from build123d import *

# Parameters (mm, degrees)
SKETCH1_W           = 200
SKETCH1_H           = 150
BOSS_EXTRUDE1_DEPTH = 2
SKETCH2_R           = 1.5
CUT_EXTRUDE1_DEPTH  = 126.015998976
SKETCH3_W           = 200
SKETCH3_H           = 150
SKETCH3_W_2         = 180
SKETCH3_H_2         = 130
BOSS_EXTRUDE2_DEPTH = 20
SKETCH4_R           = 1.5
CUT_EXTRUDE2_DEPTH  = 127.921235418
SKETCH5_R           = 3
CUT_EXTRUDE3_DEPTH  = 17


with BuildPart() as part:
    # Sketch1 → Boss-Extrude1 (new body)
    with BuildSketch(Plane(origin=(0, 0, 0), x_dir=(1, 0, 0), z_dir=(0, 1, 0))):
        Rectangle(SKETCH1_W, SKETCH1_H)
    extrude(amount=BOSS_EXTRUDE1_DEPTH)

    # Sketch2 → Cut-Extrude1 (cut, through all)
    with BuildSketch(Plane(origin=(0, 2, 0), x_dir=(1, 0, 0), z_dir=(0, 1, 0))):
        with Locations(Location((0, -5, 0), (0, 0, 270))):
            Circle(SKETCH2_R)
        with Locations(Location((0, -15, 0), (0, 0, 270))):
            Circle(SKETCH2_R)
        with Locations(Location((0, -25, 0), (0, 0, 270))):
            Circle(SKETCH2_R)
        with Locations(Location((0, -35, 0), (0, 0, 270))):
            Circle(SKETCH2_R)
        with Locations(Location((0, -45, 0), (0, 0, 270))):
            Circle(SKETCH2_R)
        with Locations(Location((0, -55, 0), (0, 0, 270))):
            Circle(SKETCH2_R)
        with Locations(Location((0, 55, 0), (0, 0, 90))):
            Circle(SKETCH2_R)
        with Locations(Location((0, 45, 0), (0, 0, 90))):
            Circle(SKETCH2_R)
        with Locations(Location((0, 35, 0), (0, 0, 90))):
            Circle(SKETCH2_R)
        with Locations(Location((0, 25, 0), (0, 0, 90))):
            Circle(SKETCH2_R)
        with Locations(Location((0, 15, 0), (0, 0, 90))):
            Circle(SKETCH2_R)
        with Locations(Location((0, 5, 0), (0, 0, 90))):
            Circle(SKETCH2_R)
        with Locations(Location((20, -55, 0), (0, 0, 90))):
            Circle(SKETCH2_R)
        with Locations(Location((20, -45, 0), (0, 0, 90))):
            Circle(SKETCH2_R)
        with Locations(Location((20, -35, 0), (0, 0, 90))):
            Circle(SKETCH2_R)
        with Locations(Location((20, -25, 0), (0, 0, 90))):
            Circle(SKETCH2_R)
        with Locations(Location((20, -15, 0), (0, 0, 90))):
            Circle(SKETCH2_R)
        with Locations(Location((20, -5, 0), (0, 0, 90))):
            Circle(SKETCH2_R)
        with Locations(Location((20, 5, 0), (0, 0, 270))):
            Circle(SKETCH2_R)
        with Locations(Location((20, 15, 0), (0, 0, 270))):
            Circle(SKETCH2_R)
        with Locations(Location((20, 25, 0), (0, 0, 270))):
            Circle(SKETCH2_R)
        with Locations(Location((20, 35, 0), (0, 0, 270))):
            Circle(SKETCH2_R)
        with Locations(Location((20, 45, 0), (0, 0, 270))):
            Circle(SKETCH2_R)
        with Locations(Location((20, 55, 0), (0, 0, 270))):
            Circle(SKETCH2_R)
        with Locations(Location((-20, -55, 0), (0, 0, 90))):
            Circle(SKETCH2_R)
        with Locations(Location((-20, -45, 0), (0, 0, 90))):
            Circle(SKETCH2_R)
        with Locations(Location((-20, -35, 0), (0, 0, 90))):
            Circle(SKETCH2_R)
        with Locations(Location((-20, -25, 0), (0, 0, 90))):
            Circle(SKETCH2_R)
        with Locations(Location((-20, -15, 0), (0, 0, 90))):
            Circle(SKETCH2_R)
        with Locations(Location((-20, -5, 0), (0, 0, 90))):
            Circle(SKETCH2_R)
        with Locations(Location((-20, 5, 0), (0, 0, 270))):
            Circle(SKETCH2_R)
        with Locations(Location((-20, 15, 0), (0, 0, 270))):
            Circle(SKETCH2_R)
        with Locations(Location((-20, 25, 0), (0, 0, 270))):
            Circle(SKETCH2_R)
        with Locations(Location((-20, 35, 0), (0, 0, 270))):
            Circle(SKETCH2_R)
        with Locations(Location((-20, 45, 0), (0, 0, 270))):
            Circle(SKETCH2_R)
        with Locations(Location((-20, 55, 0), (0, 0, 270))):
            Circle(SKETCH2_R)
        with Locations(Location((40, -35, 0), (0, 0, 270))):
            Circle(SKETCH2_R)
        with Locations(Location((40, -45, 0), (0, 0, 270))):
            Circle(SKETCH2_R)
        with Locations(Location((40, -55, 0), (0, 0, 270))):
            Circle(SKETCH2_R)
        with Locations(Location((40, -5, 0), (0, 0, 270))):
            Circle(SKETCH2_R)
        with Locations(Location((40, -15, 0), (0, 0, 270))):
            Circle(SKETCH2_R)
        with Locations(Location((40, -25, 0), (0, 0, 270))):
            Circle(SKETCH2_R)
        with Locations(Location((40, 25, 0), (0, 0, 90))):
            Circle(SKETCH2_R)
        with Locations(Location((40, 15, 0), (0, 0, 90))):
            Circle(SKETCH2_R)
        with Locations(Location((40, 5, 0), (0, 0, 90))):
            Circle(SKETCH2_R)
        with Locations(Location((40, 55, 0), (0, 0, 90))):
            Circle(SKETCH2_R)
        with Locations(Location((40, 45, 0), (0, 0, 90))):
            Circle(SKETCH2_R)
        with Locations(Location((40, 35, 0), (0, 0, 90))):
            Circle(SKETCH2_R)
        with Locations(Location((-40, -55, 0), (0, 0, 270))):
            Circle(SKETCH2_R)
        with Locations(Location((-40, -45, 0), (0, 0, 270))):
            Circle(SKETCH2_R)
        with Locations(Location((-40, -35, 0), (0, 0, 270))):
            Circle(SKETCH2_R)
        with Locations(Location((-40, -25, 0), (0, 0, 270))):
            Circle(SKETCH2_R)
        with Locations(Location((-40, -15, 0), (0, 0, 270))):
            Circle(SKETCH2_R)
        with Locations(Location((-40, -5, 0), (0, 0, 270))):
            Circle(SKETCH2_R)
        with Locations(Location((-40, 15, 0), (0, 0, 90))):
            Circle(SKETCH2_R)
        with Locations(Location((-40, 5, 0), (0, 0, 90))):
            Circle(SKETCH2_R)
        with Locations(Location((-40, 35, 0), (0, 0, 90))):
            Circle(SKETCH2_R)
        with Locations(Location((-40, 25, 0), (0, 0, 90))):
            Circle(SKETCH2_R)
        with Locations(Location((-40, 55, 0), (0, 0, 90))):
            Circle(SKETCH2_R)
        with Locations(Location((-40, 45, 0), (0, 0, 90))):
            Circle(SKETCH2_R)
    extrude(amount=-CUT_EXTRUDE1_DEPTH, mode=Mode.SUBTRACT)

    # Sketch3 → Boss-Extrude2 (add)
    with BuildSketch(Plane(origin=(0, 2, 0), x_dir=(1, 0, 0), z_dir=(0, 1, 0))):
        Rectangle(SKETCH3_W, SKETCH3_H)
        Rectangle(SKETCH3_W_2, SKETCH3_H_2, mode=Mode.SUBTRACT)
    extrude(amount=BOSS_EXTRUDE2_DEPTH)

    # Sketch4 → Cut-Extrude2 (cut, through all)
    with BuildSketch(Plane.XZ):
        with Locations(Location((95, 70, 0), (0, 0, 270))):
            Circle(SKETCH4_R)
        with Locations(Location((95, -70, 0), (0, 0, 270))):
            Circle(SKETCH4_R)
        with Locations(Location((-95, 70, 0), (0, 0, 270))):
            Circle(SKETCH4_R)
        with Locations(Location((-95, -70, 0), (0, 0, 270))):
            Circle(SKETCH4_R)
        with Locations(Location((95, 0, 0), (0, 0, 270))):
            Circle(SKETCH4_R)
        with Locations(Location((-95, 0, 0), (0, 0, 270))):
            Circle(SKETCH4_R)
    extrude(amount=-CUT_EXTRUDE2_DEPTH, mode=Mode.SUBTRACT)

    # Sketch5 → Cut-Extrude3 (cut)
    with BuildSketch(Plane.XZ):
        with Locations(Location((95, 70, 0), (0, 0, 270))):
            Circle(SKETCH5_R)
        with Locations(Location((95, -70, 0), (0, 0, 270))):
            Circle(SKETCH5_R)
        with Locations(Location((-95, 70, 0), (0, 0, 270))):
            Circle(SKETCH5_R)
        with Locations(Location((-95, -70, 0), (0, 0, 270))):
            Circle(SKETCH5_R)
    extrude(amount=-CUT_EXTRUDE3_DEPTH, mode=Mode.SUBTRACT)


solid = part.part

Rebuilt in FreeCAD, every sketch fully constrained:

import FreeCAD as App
import Part
import Sketcher
from FreeCAD import Vector
Q = App.Units.Quantity

doc = App.newDocument("Part")
body = doc.addObject("PartDesign::Body", "Body")

# Sketch on XZ plane
sketch1 = body.newObject("Sketcher::SketchObject", "Sketch")
sketch1.AttachmentSupport = (doc.getObject("XZ_Plane"), [""])
sketch1.MapMode = "FlatFace"
sketch1.addGeometry([
    Part.LineSegment(Vector(-100, -75, 0), Vector(-100, 75, 0)),
    Part.LineSegment(Vector(-100, 75, 0), Vector(100, 75, 0)),
    Part.LineSegment(Vector(100, 75, 0), Vector(100, -75, 0)),
    Part.LineSegment(Vector(100, -75, 0), Vector(-100, -75, 0)),
], False)
sketch1.addConstraint([
    Sketcher.Constraint("Coincident", 0, 2, 1, 1),
    Sketcher.Constraint("Coincident", 1, 2, 2, 1),
    Sketcher.Constraint("Coincident", 2, 2, 3, 1),
    Sketcher.Constraint("Coincident", 3, 2, 0, 1),
    Sketcher.Constraint("Vertical", 0),
    Sketcher.Constraint("Horizontal", 1),
    Sketcher.Constraint("Vertical", 2),
    Sketcher.Constraint("Horizontal", 3),
    Sketcher.Constraint("Symmetric", 0, 2, 2, 2, -1, 1),
    Sketcher.Constraint("DistanceX", 1, 1, 1, 2, Q("200 mm")),
    Sketcher.Constraint("DistanceY", 0, 1, 0, 2, Q("150 mm")),
])
pad1 = body.newObject("PartDesign::Pad", "Pad")
pad1.Profile = sketch1
pad1.Length = 2
pad1.Reversed = True

# Sketch on XZ plane
sketch2 = body.newObject("Sketcher::SketchObject", "Sketch001")
sketch2.AttachmentSupport = (doc.getObject("XZ_Plane"), [""])
sketch2.MapMode = "FlatFace"
sketch2.AttachmentOffset = App.Placement(Vector(0, 0, -2), App.Rotation())
sketch2.addGeometry([
    Part.Circle(Vector(0, 5, 0), Vector(0, 0, 1), 1.5),  # 0
    Part.Circle(Vector(0, 15, 0), Vector(0, 0, 1), 1.5),  # 1
    Part.Circle(Vector(0, 25, 0), Vector(0, 0, 1), 1.5),  # 2
    Part.Circle(Vector(0, 35, 0), Vector(0, 0, 1), 1.5),  # 3
    Part.Circle(Vector(0, 45, 0), Vector(0, 0, 1), 1.5),  # 4
    Part.Circle(Vector(0, 55, 0), Vector(0, 0, 1), 1.5),  # 5
    Part.Circle(Vector(0, -55, 0), Vector(0, 0, 1), 1.5),  # 6
    Part.Circle(Vector(0, -45, 0), Vector(0, 0, 1), 1.5),  # 7
    Part.Circle(Vector(0, -35, 0), Vector(0, 0, 1), 1.5),  # 8
    Part.Circle(Vector(0, -25, 0), Vector(0, 0, 1), 1.5),  # 9
    Part.Circle(Vector(0, -15, 0), Vector(0, 0, 1), 1.5),  # 10
    Part.Circle(Vector(0, -5, 0), Vector(0, 0, 1), 1.5),  # 11
    Part.Circle(Vector(20, 55, 0), Vector(0, 0, 1), 1.5),  # 12
    Part.Circle(Vector(20, 45, 0), Vector(0, 0, 1), 1.5),  # 13
    Part.Circle(Vector(20, 35, 0), Vector(0, 0, 1), 1.5),  # 14
    Part.Circle(Vector(20, 25, 0), Vector(0, 0, 1), 1.5),  # 15
    Part.Circle(Vector(20, 15, 0), Vector(0, 0, 1), 1.5),  # 16
    Part.Circle(Vector(20, 5, 0), Vector(0, 0, 1), 1.5),  # 17
    Part.Circle(Vector(20, -5, 0), Vector(0, 0, 1), 1.5),  # 18
    Part.Circle(Vector(20, -15, 0), Vector(0, 0, 1), 1.5),  # 19
    Part.Circle(Vector(20, -25, 0), Vector(0, 0, 1), 1.5),  # 20
    Part.Circle(Vector(20, -35, 0), Vector(0, 0, 1), 1.5),  # 21
    Part.Circle(Vector(20, -45, 0), Vector(0, 0, 1), 1.5),  # 22
    Part.Circle(Vector(20, -55, 0), Vector(0, 0, 1), 1.5),  # 23
    Part.Circle(Vector(-20, 55, 0), Vector(0, 0, 1), 1.5),  # 24
    Part.Circle(Vector(-20, 45, 0), Vector(0, 0, 1), 1.5),  # 25
    Part.Circle(Vector(-20, 35, 0), Vector(0, 0, 1), 1.5),  # 26
    Part.Circle(Vector(-20, 25, 0), Vector(0, 0, 1), 1.5),  # 27
    Part.Circle(Vector(-20, 15, 0), Vector(0, 0, 1), 1.5),  # 28
    Part.Circle(Vector(-20, 5, 0), Vector(0, 0, 1), 1.5),  # 29
    Part.Circle(Vector(-20, -5, 0), Vector(0, 0, 1), 1.5),  # 30
    Part.Circle(Vector(-20, -15, 0), Vector(0, 0, 1), 1.5),  # 31
    Part.Circle(Vector(-20, -25, 0), Vector(0, 0, 1), 1.5),  # 32
    Part.Circle(Vector(-20, -35, 0), Vector(0, 0, 1), 1.5),  # 33
    Part.Circle(Vector(-20, -45, 0), Vector(0, 0, 1), 1.5),  # 34
    Part.Circle(Vector(-20, -55, 0), Vector(0, 0, 1), 1.5),  # 35
    Part.Circle(Vector(40, 35, 0), Vector(0, 0, 1), 1.5),  # 36
    Part.Circle(Vector(40, 45, 0), Vector(0, 0, 1), 1.5),  # 37
    Part.Circle(Vector(40, 55, 0), Vector(0, 0, 1), 1.5),  # 38
    Part.Circle(Vector(40, 5, 0), Vector(0, 0, 1), 1.5),  # 39
    Part.Circle(Vector(40, 15, 0), Vector(0, 0, 1), 1.5),  # 40
    Part.Circle(Vector(40, 25, 0), Vector(0, 0, 1), 1.5),  # 41
    Part.Circle(Vector(40, -25, 0), Vector(0, 0, 1), 1.5),  # 42
    Part.Circle(Vector(40, -15, 0), Vector(0, 0, 1), 1.5),  # 43
    Part.Circle(Vector(40, -5, 0), Vector(0, 0, 1), 1.5),  # 44
    Part.Circle(Vector(40, -55, 0), Vector(0, 0, 1), 1.5),  # 45
    Part.Circle(Vector(40, -45, 0), Vector(0, 0, 1), 1.5),  # 46
    Part.Circle(Vector(40, -35, 0), Vector(0, 0, 1), 1.5),  # 47
    Part.Circle(Vector(-40, 55, 0), Vector(0, 0, 1), 1.5),  # 48
    Part.Circle(Vector(-40, 45, 0), Vector(0, 0, 1), 1.5),  # 49
    Part.Circle(Vector(-40, 35, 0), Vector(0, 0, 1), 1.5),  # 50
    Part.Circle(Vector(-40, 25, 0), Vector(0, 0, 1), 1.5),  # 51
    Part.Circle(Vector(-40, 15, 0), Vector(0, 0, 1), 1.5),  # 52
    Part.Circle(Vector(-40, 5, 0), Vector(0, 0, 1), 1.5),  # 53
    Part.Circle(Vector(-40, -15, 0), Vector(0, 0, 1), 1.5),  # 54
    Part.Circle(Vector(-40, -5, 0), Vector(0, 0, 1), 1.5),  # 55
    Part.Circle(Vector(-40, -35, 0), Vector(0, 0, 1), 1.5),  # 56
    Part.Circle(Vector(-40, -25, 0), Vector(0, 0, 1), 1.5),  # 57
    Part.Circle(Vector(-40, -55, 0), Vector(0, 0, 1), 1.5),  # 58
    Part.Circle(Vector(-40, -45, 0), Vector(0, 0, 1), 1.5),  # 59
], False)
sketch2.addConstraint([
    Sketcher.Constraint("Equal", 0, 1),
    Sketcher.Constraint("Equal", 1, 2),
    Sketcher.Constraint("Equal", 2, 3),
    Sketcher.Constraint("Equal", 3, 4),
    Sketcher.Constraint("Equal", 4, 5),
    Sketcher.Constraint("Equal", 5, 6),
    Sketcher.Constraint("Equal", 6, 7),
    Sketcher.Constraint("Equal", 7, 8),
    Sketcher.Constraint("Equal", 8, 9),
    Sketcher.Constraint("Equal", 9, 10),
    Sketcher.Constraint("Equal", 10, 11),
    Sketcher.Constraint("Equal", 11, 12),
    Sketcher.Constraint("Equal", 12, 13),
    Sketcher.Constraint("Equal", 13, 14),
    Sketcher.Constraint("Equal", 14, 15),
    Sketcher.Constraint("Equal", 15, 16),
    Sketcher.Constraint("Equal", 16, 17),
    Sketcher.Constraint("Equal", 17, 18),
    Sketcher.Constraint("Equal", 18, 19),
    Sketcher.Constraint("Equal", 19, 20),
    Sketcher.Constraint("Equal", 20, 21),
    Sketcher.Constraint("Equal", 21, 22),
    Sketcher.Constraint("Equal", 22, 23),
    Sketcher.Constraint("Equal", 23, 24),
    Sketcher.Constraint("Equal", 24, 25),
    Sketcher.Constraint("Equal", 25, 26),
    Sketcher.Constraint("Equal", 26, 27),
    Sketcher.Constraint("Equal", 27, 28),
    Sketcher.Constraint("Equal", 28, 29),
    Sketcher.Constraint("Equal", 29, 30),
    Sketcher.Constraint("Equal", 30, 31),
    Sketcher.Constraint("Equal", 31, 32),
    Sketcher.Constraint("Equal", 32, 33),
    Sketcher.Constraint("Equal", 33, 34),
    Sketcher.Constraint("Equal", 34, 35),
    Sketcher.Constraint("Equal", 35, 36),
    Sketcher.Constraint("Equal", 36, 37),
    Sketcher.Constraint("Equal", 37, 38),
    Sketcher.Constraint("Equal", 38, 39),
    Sketcher.Constraint("Equal", 39, 40),
    Sketcher.Constraint("Equal", 40, 41),
    Sketcher.Constraint("Equal", 41, 42),
    Sketcher.Constraint("Equal", 42, 43),
    Sketcher.Constraint("Equal", 43, 44),
    Sketcher.Constraint("Equal", 44, 45),
    Sketcher.Constraint("Equal", 45, 46),
    Sketcher.Constraint("Equal", 46, 47),
    Sketcher.Constraint("Equal", 47, 48),
    Sketcher.Constraint("Equal", 48, 49),
    Sketcher.Constraint("Equal", 49, 50),
    Sketcher.Constraint("Equal", 50, 51),
    Sketcher.Constraint("Equal", 51, 52),
    Sketcher.Constraint("Equal", 52, 53),
    Sketcher.Constraint("Equal", 53, 54),
    Sketcher.Constraint("Equal", 54, 55),
    Sketcher.Constraint("Equal", 55, 56),
    Sketcher.Constraint("Equal", 56, 57),
    Sketcher.Constraint("Equal", 57, 58),
    Sketcher.Constraint("Equal", 58, 59),
    Sketcher.Constraint("Symmetric", 5, 3, 6, 3, -1, 1),
    Sketcher.Constraint("Symmetric", 4, 3, 7, 3, -1, 1),
    Sketcher.Constraint("Symmetric", 3, 3, 8, 3, -1, 1),
    Sketcher.Constraint("Symmetric", 2, 3, 9, 3, -1, 1),
    Sketcher.Constraint("Symmetric", 1, 3, 10, 3, -1, 1),
    Sketcher.Constraint("Symmetric", 0, 3, 11, 3, -1, 1),
    Sketcher.Constraint("Symmetric", 23, 3, 24, 3, -1, 1),
    Sketcher.Constraint("Symmetric", 22, 3, 25, 3, -1, 1),
    Sketcher.Constraint("Symmetric", 21, 3, 26, 3, -1, 1),
    Sketcher.Constraint("Symmetric", 20, 3, 27, 3, -1, 1),
    Sketcher.Constraint("Symmetric", 19, 3, 28, 3, -1, 1),
    Sketcher.Constraint("Symmetric", 18, 3, 29, 3, -1, 1),
    Sketcher.Constraint("Symmetric", 17, 3, 30, 3, -1, 1),
    Sketcher.Constraint("Symmetric", 16, 3, 31, 3, -1, 1),
    Sketcher.Constraint("Symmetric", 15, 3, 32, 3, -1, 1),
    Sketcher.Constraint("Symmetric", 14, 3, 33, 3, -1, 1),
    Sketcher.Constraint("Symmetric", 13, 3, 34, 3, -1, 1),
    Sketcher.Constraint("Symmetric", 12, 3, 35, 3, -1, 1),
    Sketcher.Constraint("Symmetric", 45, 3, 48, 3, -1, 1),
    Sketcher.Constraint("Symmetric", 46, 3, 49, 3, -1, 1),
    Sketcher.Constraint("Symmetric", 47, 3, 50, 3, -1, 1),
    Sketcher.Constraint("Symmetric", 42, 3, 51, 3, -1, 1),
    Sketcher.Constraint("Symmetric", 43, 3, 52, 3, -1, 1),
    Sketcher.Constraint("Symmetric", 44, 3, 53, 3, -1, 1),
    Sketcher.Constraint("Symmetric", 40, 3, 54, 3, -1, 1),
    Sketcher.Constraint("Symmetric", 39, 3, 55, 3, -1, 1),
    Sketcher.Constraint("Symmetric", 36, 3, 56, 3, -1, 1),
    Sketcher.Constraint("Symmetric", 41, 3, 57, 3, -1, 1),
    Sketcher.Constraint("Symmetric", 38, 3, 58, 3, -1, 1),
    Sketcher.Constraint("Symmetric", 37, 3, 59, 3, -1, 1),
    Sketcher.Constraint("Symmetric", 12, 3, 24, 3, -2),
    Sketcher.Constraint("Symmetric", 13, 3, 25, 3, -2),
    Sketcher.Constraint("Symmetric", 14, 3, 26, 3, -2),
    Sketcher.Constraint("Symmetric", 15, 3, 27, 3, -2),
    Sketcher.Constraint("Symmetric", 16, 3, 28, 3, -2),
    Sketcher.Constraint("Symmetric", 17, 3, 29, 3, -2),
    Sketcher.Constraint("Symmetric", 38, 3, 48, 3, -2),
    Sketcher.Constraint("Symmetric", 37, 3, 49, 3, -2),
    Sketcher.Constraint("Symmetric", 36, 3, 50, 3, -2),
    Sketcher.Constraint("Symmetric", 41, 3, 51, 3, -2),
    Sketcher.Constraint("Symmetric", 40, 3, 52, 3, -2),
    Sketcher.Constraint("Symmetric", 39, 3, 53, 3, -2),
    Sketcher.Constraint("PointOnObject", 0, 3, -2),
    Sketcher.Constraint("PointOnObject", 1, 3, -2),
    Sketcher.Constraint("PointOnObject", 2, 3, -2),
    Sketcher.Constraint("PointOnObject", 3, 3, -2),
    Sketcher.Constraint("PointOnObject", 4, 3, -2),
    Sketcher.Constraint("PointOnObject", 5, 3, -2),
    Sketcher.Constraint("Horizontal", 5, 3, 12, 3),
    Sketcher.Constraint("Horizontal", 4, 3, 13, 3),
    Sketcher.Constraint("Horizontal", 3, 3, 14, 3),
    Sketcher.Constraint("Horizontal", 2, 3, 15, 3),
    Sketcher.Constraint("Horizontal", 1, 3, 16, 3),
    Sketcher.Constraint("Horizontal", 0, 3, 17, 3),
    Sketcher.Constraint("Horizontal", 26, 3, 36, 3),
    Sketcher.Constraint("Horizontal", 25, 3, 37, 3),
    Sketcher.Constraint("Horizontal", 24, 3, 38, 3),
    Sketcher.Constraint("Horizontal", 29, 3, 39, 3),
    Sketcher.Constraint("Horizontal", 28, 3, 40, 3),
    Sketcher.Constraint("Horizontal", 27, 3, 41, 3),
    Sketcher.Constraint("Vertical", 12, 3, 13, 3),
    Sketcher.Constraint("Vertical", 13, 3, 14, 3),
    Sketcher.Constraint("Vertical", 14, 3, 15, 3),
    Sketcher.Constraint("Vertical", 15, 3, 16, 3),
    Sketcher.Constraint("Vertical", 16, 3, 17, 3),
    Sketcher.Constraint("Vertical", 36, 3, 37, 3),
    Sketcher.Constraint("Vertical", 37, 3, 38, 3),
    Sketcher.Constraint("Vertical", 38, 3, 39, 3),
    Sketcher.Constraint("Vertical", 39, 3, 40, 3),
    Sketcher.Constraint("Vertical", 40, 3, 41, 3),
    Sketcher.Constraint("Diameter", 0, Q("3 mm")),
    Sketcher.Constraint("DistanceY", -1, 1, 0, 3, Q("5 mm")),
    Sketcher.Constraint("DistanceY", -1, 1, 1, 3, Q("15 mm")),
    Sketcher.Constraint("DistanceY", -1, 1, 2, 3, Q("25 mm")),
    Sketcher.Constraint("DistanceY", -1, 1, 3, 3, Q("35 mm")),
    Sketcher.Constraint("DistanceY", -1, 1, 4, 3, Q("45 mm")),
    Sketcher.Constraint("DistanceY", -1, 1, 5, 3, Q("55 mm")),
    Sketcher.Constraint("DistanceX", -1, 1, 12, 3, Q("20 mm")),
    Sketcher.Constraint("DistanceX", -1, 1, 36, 3, Q("40 mm")),
])
pocket1 = body.newObject("PartDesign::Pocket", "Pocket")
pocket1.Profile = sketch2
pocket1.Type = "ThroughAll"
pocket1.Reversed = True

# Sketch on XZ plane
sketch3 = body.newObject("Sketcher::SketchObject", "Sketch002")
sketch3.AttachmentSupport = (doc.getObject("XZ_Plane"), [""])
sketch3.MapMode = "FlatFace"
sketch3.AttachmentOffset = App.Placement(Vector(0, 0, -2), App.Rotation())
sketch3.addGeometry([
    Part.LineSegment(Vector(-100, -75, 0), Vector(-100, 75, 0)),  # 0
    Part.LineSegment(Vector(-100, 75, 0), Vector(100, 75, 0)),  # 1
    Part.LineSegment(Vector(100, 75, 0), Vector(100, -75, 0)),  # 2
    Part.LineSegment(Vector(100, -75, 0), Vector(-100, -75, 0)),  # 3
    Part.LineSegment(Vector(90, 65, 0), Vector(-90, 65, 0)),  # 4
    Part.LineSegment(Vector(-90, 65, 0), Vector(-90, -65, 0)),  # 5
    Part.LineSegment(Vector(-90, -65, 0), Vector(90, -65, 0)),  # 6
    Part.LineSegment(Vector(90, -65, 0), Vector(90, 65, 0)),  # 7
], False)
sketch3.addConstraint([
    Sketcher.Constraint("Coincident", 0, 2, 1, 1),
    Sketcher.Constraint("Coincident", 1, 2, 2, 1),
    Sketcher.Constraint("Coincident", 2, 2, 3, 1),
    Sketcher.Constraint("Coincident", 3, 2, 0, 1),
    Sketcher.Constraint("Coincident", 4, 2, 5, 1),
    Sketcher.Constraint("Coincident", 5, 2, 6, 1),
    Sketcher.Constraint("Coincident", 6, 2, 7, 1),
    Sketcher.Constraint("Coincident", 7, 2, 4, 1),
    Sketcher.Constraint("Vertical", 0),
    Sketcher.Constraint("Horizontal", 1),
    Sketcher.Constraint("Vertical", 2),
    Sketcher.Constraint("Horizontal", 3),
    Sketcher.Constraint("Horizontal", 4),
    Sketcher.Constraint("Vertical", 5),
    Sketcher.Constraint("Horizontal", 6),
    Sketcher.Constraint("Vertical", 7),
    Sketcher.Constraint("Symmetric", 0, 2, 2, 2, -1, 1),
    Sketcher.Constraint("Symmetric", 4, 2, 6, 2, -1, 1),
    Sketcher.Constraint("DistanceX", 1, 1, 1, 2, Q("200 mm")),
    Sketcher.Constraint("DistanceX", 4, 2, 4, 1, Q("180 mm")),
    Sketcher.Constraint("DistanceY", 0, 1, 0, 2, Q("150 mm")),
    Sketcher.Constraint("DistanceY", 5, 2, 5, 1, Q("130 mm")),
])
pad2 = body.newObject("PartDesign::Pad", "Pad001")
pad2.Profile = sketch3
pad2.Length = 20
pad2.Reversed = True

# Sketch on XZ plane
sketch4 = body.newObject("Sketcher::SketchObject", "Sketch003")
sketch4.AttachmentSupport = (doc.getObject("XZ_Plane"), [""])
sketch4.MapMode = "FlatFace"
sketch4.addGeometry([
    Part.Circle(Vector(95, 70, 0), Vector(0, 0, 1), 1.5),  # 0
    Part.Circle(Vector(95, -70, 0), Vector(0, 0, 1), 1.5),  # 1
    Part.Circle(Vector(-95, 70, 0), Vector(0, 0, 1), 1.5),  # 2
    Part.Circle(Vector(-95, -70, 0), Vector(0, 0, 1), 1.5),  # 3
    Part.Circle(Vector(95, 0, 0), Vector(0, 0, 1), 1.5),  # 4
    Part.Circle(Vector(-95, 0, 0), Vector(0, 0, 1), 1.5),  # 5
], False)
sketch4.addConstraint([
    Sketcher.Constraint("Equal", 0, 1),
    Sketcher.Constraint("Equal", 1, 2),
    Sketcher.Constraint("Equal", 2, 3),
    Sketcher.Constraint("Equal", 3, 4),
    Sketcher.Constraint("Equal", 4, 5),
    Sketcher.Constraint("Symmetric", 1, 3, 2, 3, -1, 1),
    Sketcher.Constraint("Symmetric", 0, 3, 3, 3, -1, 1),
    Sketcher.Constraint("Symmetric", 4, 3, 5, 3, -1, 1),
    Sketcher.Constraint("Symmetric", 0, 3, 2, 3, -2),
    Sketcher.Constraint("PointOnObject", 4, 3, -1),
    Sketcher.Constraint("Vertical", 1, 3, 4, 3),
    Sketcher.Constraint("Diameter", 0, Q("3 mm")),
    Sketcher.Constraint("DistanceX", -1, 1, 0, 3, Q("95 mm")),
    Sketcher.Constraint("DistanceY", -1, 1, 0, 3, Q("70 mm")),
])
pocket2 = body.newObject("PartDesign::Pocket", "Pocket001")
pocket2.Profile = sketch4
pocket2.Type = "ThroughAll"

# Sketch on XZ plane
sketch5 = body.newObject("Sketcher::SketchObject", "Sketch004")
sketch5.AttachmentSupport = (doc.getObject("XZ_Plane"), [""])
sketch5.MapMode = "FlatFace"
sketch5.addGeometry([
    Part.Circle(Vector(95, 70, 0), Vector(0, 0, 1), 3),
    Part.Circle(Vector(95, -70, 0), Vector(0, 0, 1), 3),
    Part.Circle(Vector(-95, 70, 0), Vector(0, 0, 1), 3),
    Part.Circle(Vector(-95, -70, 0), Vector(0, 0, 1), 3),
], False)
sketch5.addConstraint([
    Sketcher.Constraint("Equal", 0, 1),
    Sketcher.Constraint("Equal", 1, 2),
    Sketcher.Constraint("Equal", 2, 3),
    Sketcher.Constraint("Symmetric", 1, 3, 2, 3, -1, 1),
    Sketcher.Constraint("Symmetric", 0, 3, 3, 3, -1, 1),
    Sketcher.Constraint("Symmetric", 0, 3, 2, 3, -2),
    Sketcher.Constraint("Diameter", 0, Q("6 mm")),
    Sketcher.Constraint("DistanceX", -1, 1, 0, 3, Q("95 mm")),
    Sketcher.Constraint("DistanceY", -1, 1, 0, 3, Q("70 mm")),
])
pocket3 = body.newObject("PartDesign::Pocket", "Pocket002")
pocket3.Profile = sketch5
pocket3.Length = 17

doc.recompute()
